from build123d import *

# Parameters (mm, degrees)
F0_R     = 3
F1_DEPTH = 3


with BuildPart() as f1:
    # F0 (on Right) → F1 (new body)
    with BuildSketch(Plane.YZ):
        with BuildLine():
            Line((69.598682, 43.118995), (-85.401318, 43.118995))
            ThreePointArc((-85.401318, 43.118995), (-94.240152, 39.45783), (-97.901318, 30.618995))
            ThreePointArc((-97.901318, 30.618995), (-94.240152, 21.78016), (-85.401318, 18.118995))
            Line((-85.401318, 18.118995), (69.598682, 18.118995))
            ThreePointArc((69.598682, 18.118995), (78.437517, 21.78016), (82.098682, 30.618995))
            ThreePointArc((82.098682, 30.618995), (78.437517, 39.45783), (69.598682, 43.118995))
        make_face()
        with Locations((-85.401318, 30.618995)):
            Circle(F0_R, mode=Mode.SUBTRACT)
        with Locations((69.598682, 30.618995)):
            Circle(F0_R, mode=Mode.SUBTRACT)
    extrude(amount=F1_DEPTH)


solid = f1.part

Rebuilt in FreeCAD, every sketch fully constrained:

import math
import FreeCAD as App
import Part
import Sketcher
from FreeCAD import Vector

doc = App.newDocument("Part")
body = doc.addObject("PartDesign::Body", "Body")

sketch1 = body.newObject("Sketcher::SketchObject", "Sketch")
sketch1.AttachmentSupport = (doc.getObject("YZ_Plane"), [""])
sketch1.MapMode = "FlatFace"
sketch1.addGeometry(Part.LineSegment(Vector(69.6, 43.1, 0), Vector(-85.4, 43.1, 0)), False)
sketch1.addGeometry(Part.ArcOfCircle(Part.Circle(Vector(-85.4, 30.6, 0), Vector(0, 0, 1), 12.5), math.radians(90), math.radians(180)), False)
sketch1.addGeometry(Part.ArcOfCircle(Part.Circle(Vector(-85.4, 30.6, 0), Vector(0, 0, 1), 12.5), math.radians(-180), math.radians(-90)), False)
sketch1.addGeometry(Part.LineSegment(Vector(-85.4, 18.1, 0), Vector(69.6, 18.1, 0)), False)
sketch1.addGeometry(Part.ArcOfCircle(Part.Circle(Vector(69.6, 30.6, 0), Vector(0, 0, 1), 12.5), math.radians(-90), math.radians(0)), False)
sketch1.addGeometry(Part.ArcOfCircle(Part.Circle(Vector(69.6, 30.6, 0), Vector(0, 0, 1), 12.5), math.radians(0), math.radians(90)), False)
sketch1.addGeometry(Part.Circle(Vector(-85.4, 30.6, 0), Vector(0, 0, 1), 3), False)
sketch1.addGeometry(Part.Circle(Vector(69.6, 30.6, 0), Vector(0, 0, 1), 3), False)
sketch1.addConstraint(Sketcher.Constraint("Tangent", 0, 2, 1, 1))
sketch1.addConstraint(Sketcher.Constraint("Tangent", 1, 2, 2, 1))
sketch1.addConstraint(Sketcher.Constraint("Tangent", 2, 2, 3, 1))
sketch1.addConstraint(Sketcher.Constraint("Tangent", 3, 2, 4, 1))
sketch1.addConstraint(Sketcher.Constraint("Tangent", 4, 2, 5, 1))
sketch1.addConstraint(Sketcher.Constraint("Tangent", 5, 2, 0, 1))
sketch1.addConstraint(Sketcher.Constraint("Horizontal", 0))
sketch1.addConstraint(Sketcher.Constraint("Horizontal", 3))
sketch1.addConstraint(Sketcher.Constraint("Coincident", 6, 3, 1, 3))
sketch1.addConstraint(Sketcher.Constraint("Coincident", 7, 3, 4, 3))
sketch1.addConstraint(Sketcher.Constraint("Equal", 1, 2))
sketch1.addConstraint(Sketcher.Constraint("Equal", 2, 4))
sketch1.addConstraint(Sketcher.Constraint("Equal", 6, 7))
sketch1.addConstraint(Sketcher.Constraint("Horizontal", 7, 3, 1, 2))
sketch1.addConstraint(Sketcher.Constraint("Horizontal", 1, 2, 4, 2))
sketch1.addConstraint(Sketcher.Constraint("Diameter", 6, 6.0))
sketch1.addConstraint(Sketcher.Constraint("Radius", 1, 12.500001))
sketch1.addConstraint(Sketcher.Constraint("DistanceX", 0, 2, 0, 1, 155.0))
sketch1.addConstraint(Sketcher.Constraint("DistanceX", 6, 3, -1, 1, 85.401318))
sketch1.addConstraint(Sketcher.Constraint("DistanceY", -1, 1, 1, 3, 30.618994))
pad1 = body.newObject("PartDesign::Pad", "Pad")
pad1.Profile = sketch1
pad1.Length = 3

doc.recompute()
